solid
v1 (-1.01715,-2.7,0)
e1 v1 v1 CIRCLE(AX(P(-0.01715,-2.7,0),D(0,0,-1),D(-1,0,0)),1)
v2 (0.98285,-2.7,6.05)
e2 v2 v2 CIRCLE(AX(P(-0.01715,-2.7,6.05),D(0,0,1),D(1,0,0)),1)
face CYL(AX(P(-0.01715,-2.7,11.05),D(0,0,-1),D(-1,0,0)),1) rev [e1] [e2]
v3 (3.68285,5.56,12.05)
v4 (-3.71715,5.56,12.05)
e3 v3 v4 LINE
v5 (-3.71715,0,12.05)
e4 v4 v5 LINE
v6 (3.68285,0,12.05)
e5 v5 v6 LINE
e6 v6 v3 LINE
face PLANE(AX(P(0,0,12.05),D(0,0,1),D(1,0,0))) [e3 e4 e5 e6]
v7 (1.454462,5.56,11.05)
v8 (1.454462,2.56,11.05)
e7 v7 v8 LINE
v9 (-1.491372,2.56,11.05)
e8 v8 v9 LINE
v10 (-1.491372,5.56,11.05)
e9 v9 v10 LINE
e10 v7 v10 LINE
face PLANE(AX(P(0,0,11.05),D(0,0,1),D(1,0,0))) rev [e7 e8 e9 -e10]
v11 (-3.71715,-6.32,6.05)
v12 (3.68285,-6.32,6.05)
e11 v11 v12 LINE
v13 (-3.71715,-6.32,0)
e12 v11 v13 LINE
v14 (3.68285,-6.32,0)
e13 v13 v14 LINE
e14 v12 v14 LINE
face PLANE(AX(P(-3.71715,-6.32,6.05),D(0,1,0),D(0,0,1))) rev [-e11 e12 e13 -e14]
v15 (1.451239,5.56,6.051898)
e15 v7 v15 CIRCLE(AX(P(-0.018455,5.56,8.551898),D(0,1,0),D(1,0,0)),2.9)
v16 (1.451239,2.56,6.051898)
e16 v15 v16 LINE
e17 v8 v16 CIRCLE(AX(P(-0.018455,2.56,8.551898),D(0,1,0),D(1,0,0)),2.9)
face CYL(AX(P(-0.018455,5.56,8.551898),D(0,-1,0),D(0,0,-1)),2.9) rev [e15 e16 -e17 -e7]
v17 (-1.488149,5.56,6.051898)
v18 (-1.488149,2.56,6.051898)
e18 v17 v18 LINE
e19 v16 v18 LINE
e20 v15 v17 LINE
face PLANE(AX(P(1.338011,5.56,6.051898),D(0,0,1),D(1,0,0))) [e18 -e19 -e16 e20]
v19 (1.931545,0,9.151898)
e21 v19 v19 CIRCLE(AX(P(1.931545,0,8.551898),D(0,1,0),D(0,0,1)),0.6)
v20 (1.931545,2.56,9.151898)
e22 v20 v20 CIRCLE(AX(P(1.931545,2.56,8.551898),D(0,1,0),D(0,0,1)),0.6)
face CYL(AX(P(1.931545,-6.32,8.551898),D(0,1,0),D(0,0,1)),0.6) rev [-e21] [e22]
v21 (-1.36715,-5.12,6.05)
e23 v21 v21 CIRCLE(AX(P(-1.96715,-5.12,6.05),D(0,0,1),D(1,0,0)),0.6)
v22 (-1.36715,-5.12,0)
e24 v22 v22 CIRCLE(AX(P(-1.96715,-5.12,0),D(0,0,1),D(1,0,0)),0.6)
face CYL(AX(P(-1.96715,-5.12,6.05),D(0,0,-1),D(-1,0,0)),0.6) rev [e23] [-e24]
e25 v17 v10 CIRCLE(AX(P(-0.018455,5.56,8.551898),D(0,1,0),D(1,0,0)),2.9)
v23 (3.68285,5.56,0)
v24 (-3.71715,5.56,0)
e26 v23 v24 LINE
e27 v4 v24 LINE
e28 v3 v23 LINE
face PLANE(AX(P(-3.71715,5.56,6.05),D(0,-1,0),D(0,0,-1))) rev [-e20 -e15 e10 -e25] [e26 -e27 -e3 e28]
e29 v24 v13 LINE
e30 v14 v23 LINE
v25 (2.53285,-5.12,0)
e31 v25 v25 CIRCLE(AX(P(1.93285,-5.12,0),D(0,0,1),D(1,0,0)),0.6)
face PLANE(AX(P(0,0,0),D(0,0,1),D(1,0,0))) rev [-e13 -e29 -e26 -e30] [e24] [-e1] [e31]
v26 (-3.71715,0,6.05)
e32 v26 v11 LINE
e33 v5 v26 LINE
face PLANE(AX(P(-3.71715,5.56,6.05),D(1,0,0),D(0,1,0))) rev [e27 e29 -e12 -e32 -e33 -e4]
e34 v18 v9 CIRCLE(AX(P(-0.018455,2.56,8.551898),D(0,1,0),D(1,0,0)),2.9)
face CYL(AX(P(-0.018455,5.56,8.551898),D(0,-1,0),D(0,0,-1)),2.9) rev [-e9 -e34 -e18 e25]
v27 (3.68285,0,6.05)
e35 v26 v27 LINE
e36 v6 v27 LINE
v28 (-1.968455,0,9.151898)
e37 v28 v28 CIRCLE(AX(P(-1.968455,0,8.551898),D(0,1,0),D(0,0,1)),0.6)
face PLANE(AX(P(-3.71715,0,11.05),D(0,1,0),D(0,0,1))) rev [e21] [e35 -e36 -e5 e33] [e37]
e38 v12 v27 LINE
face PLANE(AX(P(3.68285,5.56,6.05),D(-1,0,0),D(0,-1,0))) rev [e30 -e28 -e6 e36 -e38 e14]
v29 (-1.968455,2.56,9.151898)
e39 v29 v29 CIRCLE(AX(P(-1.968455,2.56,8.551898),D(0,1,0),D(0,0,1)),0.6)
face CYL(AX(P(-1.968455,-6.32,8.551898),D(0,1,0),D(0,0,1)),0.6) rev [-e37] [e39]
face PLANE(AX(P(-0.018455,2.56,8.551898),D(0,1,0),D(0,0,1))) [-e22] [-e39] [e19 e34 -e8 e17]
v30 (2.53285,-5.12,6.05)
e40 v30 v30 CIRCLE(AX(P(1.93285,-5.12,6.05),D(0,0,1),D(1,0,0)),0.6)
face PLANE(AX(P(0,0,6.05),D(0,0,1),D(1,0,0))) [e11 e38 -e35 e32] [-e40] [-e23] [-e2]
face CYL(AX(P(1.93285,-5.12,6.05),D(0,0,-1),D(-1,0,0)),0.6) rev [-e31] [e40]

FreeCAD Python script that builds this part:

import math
import FreeCAD as App
import Part
import Sketcher
Q = App.Units.Quantity


def add_polygon(sketch, points):
    """Adds a closed chain of lines whose ends are joined by coincident constraints."""
    first, n = sketch.GeometryCount, len(points)
    for a, b in zip(points, points[1:] + points[:1]):
        sketch.addGeometry(Part.LineSegment(App.Vector(*a, 0), App.Vector(*b, 0)), False)
    for i in range(n):
        sketch.addConstraint(Sketcher.Constraint("Coincident", first + i, 2, first + (i + 1) % n, 1))

doc = App.newDocument("Part")
body = doc.addObject("PartDesign::Body", "Body")

sketch1 = doc.addObject("Sketcher::SketchObject", "Sketch")
body.addObject(sketch1)
sketch1.AttachmentSupport = (doc.XY_Plane, [""])
sketch1.MapMode = "FlatFace"
add_polygon(sketch1, [(-3.7, 5.6), (-3.7, -6.3), (3.7, -6.3), (3.7, 5.6)])
sketch1.addGeometry(Part.Circle(App.Vector(-2, -5.1, 0), App.Vector(0, 0, 1), 0.6), False)
sketch1.addGeometry(Part.Circle(App.Vector(1.9, -5.1, 0), App.Vector(0, 0, 1), 0.6), False)
sketch1.addConstraint(Sketcher.Constraint("Vertical", 0))
sketch1.addConstraint(Sketcher.Constraint("Horizontal", 1))
sketch1.addConstraint(Sketcher.Constraint("Vertical", 2))
sketch1.addConstraint(Sketcher.Constraint("Horizontal", 3))
sketch1.addConstraint(Sketcher.Constraint("Equal", 4, 5))
sketch1.addConstraint(Sketcher.Constraint("Horizontal", 4, 3, 5, 3))
sketch1.addConstraint(Sketcher.Constraint("Diameter", 4, Q("1.2 mm")))
sketch1.addConstraint(Sketcher.Constraint("DistanceX", 1, 1, 1, 2, Q("7.4 mm")))
sketch1.addConstraint(Sketcher.Constraint("DistanceY", 0, 2, 0, 1, Q("11.88 mm")))
sketch1.addConstraint(Sketcher.Constraint("DistanceX", 4, 3, 5, 3, Q("3.9 mm")))
sketch1.addConstraint(Sketcher.Constraint("DistanceY", 0, 2, 4, 3, Q("1.2 mm")))
sketch1.addConstraint(Sketcher.Constraint("DistanceY", 4, 3, -1, 1, Q("5.12 mm")))
sketch1.addConstraint(Sketcher.Constraint("DistanceX", 0, 2, 4, 3, Q("1.75 mm")))
sketch1.addConstraint(Sketcher.Constraint("DistanceX", 4, 3, -1, 1, Q("1.96715 mm")))
pad1 = doc.addObject("PartDesign::Pad", "Pad")
body.addObject(pad1)
pad1.Profile = sketch1
pad1.Length = 6.05

sketch2 = doc.addObject("Sketcher::SketchObject", "Sketch001")
body.addObject(sketch2)
sketch2.AttachmentSupport = (doc.XY_Plane, [""])
sketch2.MapMode = "FlatFace"
sketch2.AttachmentOffset = App.Placement(App.Vector(0, 0, 6.05), App.Rotation())
add_polygon(sketch2, [(-4, 6), (-4, 0), (4, 0), (4, 6)])
sketch2.addConstraint(Sketcher.Constraint("Vertical", 0))
sketch2.addConstraint(Sketcher.Constraint("Horizontal", 1))
sketch2.addConstraint(Sketcher.Constraint("Vertical", 2))
sketch2.addConstraint(Sketcher.Constraint("Horizontal", 3))
sketch2.addConstraint(Sketcher.Constraint("PointOnObject", 0, 2, -1))
sketch2.addConstraint(Sketcher.Constraint("DistanceX", 1, 1, 1, 2, Q("7.4 mm")))
sketch2.addConstraint(Sketcher.Constraint("DistanceY", 0, 2, 0, 1, Q("5.56 mm")))
sketch2.addConstraint(Sketcher.Constraint("DistanceX", 0, 2, -1, 1, Q("3.71715 mm")))
pad2 = doc.addObject("PartDesign::Pad", "Pad001")
body.addObject(pad2)
pad2.Profile = sketch2
pad2.Length = 5

sketch3 = doc.addObject("Sketcher::SketchObject", "Sketch002")
body.addObject(sketch3)
sketch3.AttachmentSupport = (doc.XZ_Plane, [""])
sketch3.MapMode = "FlatFace"
sketch3.AttachmentOffset = App.Placement(App.Vector(0, 0, -5.56), App.Rotation())
sketch3.addGeometry(Part.ArcOfCircle(Part.Circle(App.Vector(0, 8.6, 0), App.Vector(0, 0, 1), 2.5), math.radians(123), math.radians(237)), False)
sketch3.addGeometry(Part.LineSegment(App.Vector(-1.4, 10.7, 0), App.Vector(1.3, 10.7, 0)), False)
sketch3.addGeometry(Part.ArcOfCircle(Part.Circle(App.Vector(0, 8.6, 0), App.Vector(0, 0, 1), 2.5), math.radians(-57), math.radians(57)), False)
sketch3.addGeometry(Part.LineSegment(App.Vector(1.3, 6.5, 0), App.Vector(-1.4, 6.5, 0)), False)
sketch3.addConstraint(Sketcher.Constraint("Coincident", 0, 1, 1, 1))
sketch3.addConstraint(Sketcher.Constraint("Coincident", 1, 2, 2, 2))
sketch3.addConstraint(Sketcher.Constraint("Coincident", 2, 1, 3, 1))
sketch3.addConstraint(Sketcher.Constraint("Coincident", 3, 2, 0, 2))
sketch3.addConstraint(Sketcher.Constraint("Horizontal", 1))
sketch3.addConstraint(Sketcher.Constraint("Horizontal", 3))
sketch3.addConstraint(Sketcher.Constraint("Coincident", 2, 3, 0, 3))
sketch3.addConstraint(Sketcher.Constraint("Equal", 0, 2))
sketch3.addConstraint(Sketcher.Constraint("Vertical", 1, 2, 2, 1))
sketch3.addConstraint(Sketcher.Constraint("Radius", 0, Q("2.5 mm")))
sketch3.addConstraint(Sketcher.Constraint("DistanceY", 0, 3, 0, 1, Q("2.1 mm")))
sketch3.addConstraint(Sketcher.Constraint("DistanceX", 0, 1, -1, 1, Q("1.374921 mm")))
sketch3.addConstraint(Sketcher.Constraint("DistanceY", -1, 1, 0, 3, Q("8.551898 mm")))
pocket1 = doc.addObject("PartDesign::Pocket", "Pocket")
body.addObject(pocket1)
pocket1.Profile = sketch3
pocket1.Length = 3
pocket1.Reversed = True

sketch4 = doc.addObject("Sketcher::SketchObject", "Sketch003")
body.addObject(sketch4)
sketch4.AttachmentSupport = (doc.XZ_Plane, [""])
sketch4.MapMode = "FlatFace"
sketch4.AttachmentOffset = App.Placement(App.Vector(0, 0, -5.56), App.Rotation())
sketch4.addGeometry(Part.LineSegment(App.Vector(-1.5, 11.1, 0), App.Vector(1.5, 11.1, 0)), False)
sketch4.addGeometry(Part.ArcOfCircle(Part.Circle(App.Vector(0, 8.6, 0), App.Vector(0, 0, 1), 2.9), math.radians(-60), math.radians(60)), False)
sketch4.addGeometry(Part.LineSegment(App.Vector(1.5, 6.1, 0), App.Vector(-1.5, 6.1, 0)), False)
sketch4.addGeometry(Part.ArcOfCircle(Part.Circle(App.Vector(0, 8.6, 0), App.Vector(0, 0, 1), 2.9), math.radians(120), math.radians(240)), False)
sketch4.addGeometry(Part.LineSegment(App.Vector(1.3, 10.7, 0), App.Vector(-1.4, 10.7, 0)), False)
sketch4.addGeometry(Part.ArcOfCircle(Part.Circle(App.Vector(0, 8.6, 0), App.Vector(0, 0, 1), 2.5), math.radians(123), math.radians(237)), False)
sketch4.addGeometry(Part.LineSegment(App.Vector(-1.4, 6.5, 0), App.Vector(1.3, 6.5, 0)), False)
sketch4.addGeometry(Part.ArcOfCircle(Part.Circle(App.Vector(0, 8.6, 0), App.Vector(0, 0, 1), 2.5), math.radians(-57), math.radians(57)), False)
sketch4.addConstraint(Sketcher.Constraint("Coincident", 0, 2, 1, 2))
sketch4.addConstraint(Sketcher.Constraint("Coincident", 1, 1, 2, 1))
sketch4.addConstraint(Sketcher.Constraint("Coincident", 2, 2, 3, 2))
sketch4.addConstraint(Sketcher.Constraint("Coincident", 3, 1, 0, 1))
sketch4.addConstraint(Sketcher.Constraint("Coincident", 4, 2, 5, 1))
sketch4.addConstraint(Sketcher.Constraint("Coincident", 5, 2, 6, 1))
sketch4.addConstraint(Sketcher.Constraint("Coincident", 6, 2, 7, 1))
sketch4.addConstraint(Sketcher.Constraint("Coincident", 7, 2, 4, 1))
sketch4.addConstraint(Sketcher.Constraint("Horizontal", 0))
sketch4.addConstraint(Sketcher.Constraint("Horizontal", 2))
sketch4.addConstraint(Sketcher.Constraint("Horizontal", 4))
sketch4.addConstraint(Sketcher.Constraint("Horizontal", 6))
sketch4.addConstraint(Sketcher.Constraint("Coincident", 3, 3, 1, 3))
sketch4.addConstraint(Sketcher.Constraint("Coincident", 5, 3, 1, 3))
sketch4.addConstraint(Sketcher.Constraint("Coincident", 7, 3, 1, 3))
sketch4.addConstraint(Sketcher.Constraint("Equal", 1, 3))
sketch4.addConstraint(Sketcher.Constraint("Equal", 5, 7))
sketch4.addConstraint(Sketcher.Constraint("Vertical", 0, 2, 1, 1))
sketch4.addConstraint(Sketcher.Constraint("Vertical", 4, 2, 5, 2))
sketch4.addConstraint(Sketcher.Constraint("Radius", 1, Q("2.9 mm")))
sketch4.addConstraint(Sketcher.Constraint("Radius", 5, Q("2.5 mm")))
sketch4.addConstraint(Sketcher.Constraint("DistanceY", 1, 1, 0, 2, Q("5 mm")))
sketch4.addConstraint(Sketcher.Constraint("DistanceY", 4, 2, 3, 1, Q("0.4 mm")))
sketch4.addConstraint(Sketcher.Constraint("DistanceX", -1, 1, 0, 2, Q("1.451239 mm")))
sketch4.addConstraint(Sketcher.Constraint("DistanceY", -1, 1, 1, 3, Q("8.551898 mm")))
pocket2 = doc.addObject("PartDesign::Pocket", "Pocket001")
body.addObject(pocket2)
pocket2.Profile = sketch4
pocket2.Length = 3
pocket2.Reversed = True

sketch5 = doc.addObject("Sketcher::SketchObject", "Sketch004")
body.addObject(sketch5)
sketch5.AttachmentSupport = (doc.XZ_Plane, [""])
sketch5.MapMode = "FlatFace"
sketch5.AttachmentOffset = App.Placement(App.Vector(0, 0, -2.56), App.Rotation())
sketch5.addGeometry(Part.Circle(App.Vector(-2, 8.6, 0), App.Vector(0, 0, 1), 0.6), False)
sketch5.addGeometry(Part.Circle(App.Vector(1.9, 8.6, 0), App.Vector(0, 0, 1), 0.6), False)
sketch5.addConstraint(Sketcher.Constraint("Equal", 0, 1))
sketch5.addConstraint(Sketcher.Constraint("Horizontal", 0, 3, 1, 3))
sketch5.addConstraint(Sketcher.Constraint("Diameter", 0, Q("1.2 mm")))
sketch5.addConstraint(Sketcher.Constraint("DistanceX", 0, 3, 1, 3, Q("3.9 mm")))
sketch5.addConstraint(Sketcher.Constraint("DistanceX", 0, 3, -1, 1, Q("1.968455 mm")))
sketch5.addConstraint(Sketcher.Constraint("DistanceY", -1, 1, 0, 3, Q("8.551898 mm")))
pocket3 = doc.addObject("PartDesign::Pocket", "Pocket002")
body.addObject(pocket3)
pocket3.Profile = sketch5
pocket3.Type = "ThroughAll"
pocket3.Reversed = True

sketch6 = doc.addObject("Sketcher::SketchObject", "Sketch005")
body.addObject(sketch6)
sketch6.AttachmentSupport = (doc.XY_Plane, [""])
sketch6.MapMode = "FlatFace"
sketch6.addGeometry(Part.Circle(App.Vector(0, -2.7, 0), App.Vector(0, 0, 1), 1), False)
sketch6.addConstraint(Sketcher.Constraint("Diameter", 0, Q("2 mm")))
sketch6.addConstraint(Sketcher.Constraint("DistanceY", 0, 3, -1, 1, Q("2.7 mm")))
sketch6.addConstraint(Sketcher.Constraint("DistanceX", 0, 3, -1, 1, Q("0.01715 mm")))
pocket4 = doc.addObject("PartDesign::Pocket", "Pocket003")
body.addObject(pocket4)
pocket4.Profile = sketch6
pocket4.Type = "ThroughAll"
pocket4.Reversed = True

sketch7 = doc.addObject("Sketcher::SketchObject", "Sketch006")
body.addObject(sketch7)
sketch7.AttachmentSupport = (doc.XY_Plane, [""])
sketch7.MapMode = "FlatFace"
sketch7.AttachmentOffset = App.Placement(App.Vector(0, 0, 11.05), App.Rotation())
add_polygon(sketch7, [(-4, 6), (-4, 0), (4, 0), (4, 6)])
sketch7.addConstraint(Sketcher.Constraint("Vertical", 0))
sketch7.addConstraint(Sketcher.Constraint("Horizontal", 1))
sketch7.addConstraint(Sketcher.Constraint("Vertical", 2))
sketch7.addConstraint(Sketcher.Constraint("Horizontal", 3))
sketch7.addConstraint(Sketcher.Constraint("PointOnObject", 0, 2, -1))
sketch7.addConstraint(Sketcher.Constraint("DistanceX", 1, 1, 1, 2, Q("7.4 mm")))
sketch7.addConstraint(Sketcher.Constraint("DistanceY", 0, 2, 0, 1, Q("5.56 mm")))
sketch7.addConstraint(Sketcher.Constraint("DistanceX", 0, 2, -1, 1, Q("3.71715 mm")))
pad3 = doc.addObject("PartDesign::Pad", "Pad002")
body.addObject(pad3)
pad3.Profile = sketch7
pad3.Length = 1

doc.recompute()
